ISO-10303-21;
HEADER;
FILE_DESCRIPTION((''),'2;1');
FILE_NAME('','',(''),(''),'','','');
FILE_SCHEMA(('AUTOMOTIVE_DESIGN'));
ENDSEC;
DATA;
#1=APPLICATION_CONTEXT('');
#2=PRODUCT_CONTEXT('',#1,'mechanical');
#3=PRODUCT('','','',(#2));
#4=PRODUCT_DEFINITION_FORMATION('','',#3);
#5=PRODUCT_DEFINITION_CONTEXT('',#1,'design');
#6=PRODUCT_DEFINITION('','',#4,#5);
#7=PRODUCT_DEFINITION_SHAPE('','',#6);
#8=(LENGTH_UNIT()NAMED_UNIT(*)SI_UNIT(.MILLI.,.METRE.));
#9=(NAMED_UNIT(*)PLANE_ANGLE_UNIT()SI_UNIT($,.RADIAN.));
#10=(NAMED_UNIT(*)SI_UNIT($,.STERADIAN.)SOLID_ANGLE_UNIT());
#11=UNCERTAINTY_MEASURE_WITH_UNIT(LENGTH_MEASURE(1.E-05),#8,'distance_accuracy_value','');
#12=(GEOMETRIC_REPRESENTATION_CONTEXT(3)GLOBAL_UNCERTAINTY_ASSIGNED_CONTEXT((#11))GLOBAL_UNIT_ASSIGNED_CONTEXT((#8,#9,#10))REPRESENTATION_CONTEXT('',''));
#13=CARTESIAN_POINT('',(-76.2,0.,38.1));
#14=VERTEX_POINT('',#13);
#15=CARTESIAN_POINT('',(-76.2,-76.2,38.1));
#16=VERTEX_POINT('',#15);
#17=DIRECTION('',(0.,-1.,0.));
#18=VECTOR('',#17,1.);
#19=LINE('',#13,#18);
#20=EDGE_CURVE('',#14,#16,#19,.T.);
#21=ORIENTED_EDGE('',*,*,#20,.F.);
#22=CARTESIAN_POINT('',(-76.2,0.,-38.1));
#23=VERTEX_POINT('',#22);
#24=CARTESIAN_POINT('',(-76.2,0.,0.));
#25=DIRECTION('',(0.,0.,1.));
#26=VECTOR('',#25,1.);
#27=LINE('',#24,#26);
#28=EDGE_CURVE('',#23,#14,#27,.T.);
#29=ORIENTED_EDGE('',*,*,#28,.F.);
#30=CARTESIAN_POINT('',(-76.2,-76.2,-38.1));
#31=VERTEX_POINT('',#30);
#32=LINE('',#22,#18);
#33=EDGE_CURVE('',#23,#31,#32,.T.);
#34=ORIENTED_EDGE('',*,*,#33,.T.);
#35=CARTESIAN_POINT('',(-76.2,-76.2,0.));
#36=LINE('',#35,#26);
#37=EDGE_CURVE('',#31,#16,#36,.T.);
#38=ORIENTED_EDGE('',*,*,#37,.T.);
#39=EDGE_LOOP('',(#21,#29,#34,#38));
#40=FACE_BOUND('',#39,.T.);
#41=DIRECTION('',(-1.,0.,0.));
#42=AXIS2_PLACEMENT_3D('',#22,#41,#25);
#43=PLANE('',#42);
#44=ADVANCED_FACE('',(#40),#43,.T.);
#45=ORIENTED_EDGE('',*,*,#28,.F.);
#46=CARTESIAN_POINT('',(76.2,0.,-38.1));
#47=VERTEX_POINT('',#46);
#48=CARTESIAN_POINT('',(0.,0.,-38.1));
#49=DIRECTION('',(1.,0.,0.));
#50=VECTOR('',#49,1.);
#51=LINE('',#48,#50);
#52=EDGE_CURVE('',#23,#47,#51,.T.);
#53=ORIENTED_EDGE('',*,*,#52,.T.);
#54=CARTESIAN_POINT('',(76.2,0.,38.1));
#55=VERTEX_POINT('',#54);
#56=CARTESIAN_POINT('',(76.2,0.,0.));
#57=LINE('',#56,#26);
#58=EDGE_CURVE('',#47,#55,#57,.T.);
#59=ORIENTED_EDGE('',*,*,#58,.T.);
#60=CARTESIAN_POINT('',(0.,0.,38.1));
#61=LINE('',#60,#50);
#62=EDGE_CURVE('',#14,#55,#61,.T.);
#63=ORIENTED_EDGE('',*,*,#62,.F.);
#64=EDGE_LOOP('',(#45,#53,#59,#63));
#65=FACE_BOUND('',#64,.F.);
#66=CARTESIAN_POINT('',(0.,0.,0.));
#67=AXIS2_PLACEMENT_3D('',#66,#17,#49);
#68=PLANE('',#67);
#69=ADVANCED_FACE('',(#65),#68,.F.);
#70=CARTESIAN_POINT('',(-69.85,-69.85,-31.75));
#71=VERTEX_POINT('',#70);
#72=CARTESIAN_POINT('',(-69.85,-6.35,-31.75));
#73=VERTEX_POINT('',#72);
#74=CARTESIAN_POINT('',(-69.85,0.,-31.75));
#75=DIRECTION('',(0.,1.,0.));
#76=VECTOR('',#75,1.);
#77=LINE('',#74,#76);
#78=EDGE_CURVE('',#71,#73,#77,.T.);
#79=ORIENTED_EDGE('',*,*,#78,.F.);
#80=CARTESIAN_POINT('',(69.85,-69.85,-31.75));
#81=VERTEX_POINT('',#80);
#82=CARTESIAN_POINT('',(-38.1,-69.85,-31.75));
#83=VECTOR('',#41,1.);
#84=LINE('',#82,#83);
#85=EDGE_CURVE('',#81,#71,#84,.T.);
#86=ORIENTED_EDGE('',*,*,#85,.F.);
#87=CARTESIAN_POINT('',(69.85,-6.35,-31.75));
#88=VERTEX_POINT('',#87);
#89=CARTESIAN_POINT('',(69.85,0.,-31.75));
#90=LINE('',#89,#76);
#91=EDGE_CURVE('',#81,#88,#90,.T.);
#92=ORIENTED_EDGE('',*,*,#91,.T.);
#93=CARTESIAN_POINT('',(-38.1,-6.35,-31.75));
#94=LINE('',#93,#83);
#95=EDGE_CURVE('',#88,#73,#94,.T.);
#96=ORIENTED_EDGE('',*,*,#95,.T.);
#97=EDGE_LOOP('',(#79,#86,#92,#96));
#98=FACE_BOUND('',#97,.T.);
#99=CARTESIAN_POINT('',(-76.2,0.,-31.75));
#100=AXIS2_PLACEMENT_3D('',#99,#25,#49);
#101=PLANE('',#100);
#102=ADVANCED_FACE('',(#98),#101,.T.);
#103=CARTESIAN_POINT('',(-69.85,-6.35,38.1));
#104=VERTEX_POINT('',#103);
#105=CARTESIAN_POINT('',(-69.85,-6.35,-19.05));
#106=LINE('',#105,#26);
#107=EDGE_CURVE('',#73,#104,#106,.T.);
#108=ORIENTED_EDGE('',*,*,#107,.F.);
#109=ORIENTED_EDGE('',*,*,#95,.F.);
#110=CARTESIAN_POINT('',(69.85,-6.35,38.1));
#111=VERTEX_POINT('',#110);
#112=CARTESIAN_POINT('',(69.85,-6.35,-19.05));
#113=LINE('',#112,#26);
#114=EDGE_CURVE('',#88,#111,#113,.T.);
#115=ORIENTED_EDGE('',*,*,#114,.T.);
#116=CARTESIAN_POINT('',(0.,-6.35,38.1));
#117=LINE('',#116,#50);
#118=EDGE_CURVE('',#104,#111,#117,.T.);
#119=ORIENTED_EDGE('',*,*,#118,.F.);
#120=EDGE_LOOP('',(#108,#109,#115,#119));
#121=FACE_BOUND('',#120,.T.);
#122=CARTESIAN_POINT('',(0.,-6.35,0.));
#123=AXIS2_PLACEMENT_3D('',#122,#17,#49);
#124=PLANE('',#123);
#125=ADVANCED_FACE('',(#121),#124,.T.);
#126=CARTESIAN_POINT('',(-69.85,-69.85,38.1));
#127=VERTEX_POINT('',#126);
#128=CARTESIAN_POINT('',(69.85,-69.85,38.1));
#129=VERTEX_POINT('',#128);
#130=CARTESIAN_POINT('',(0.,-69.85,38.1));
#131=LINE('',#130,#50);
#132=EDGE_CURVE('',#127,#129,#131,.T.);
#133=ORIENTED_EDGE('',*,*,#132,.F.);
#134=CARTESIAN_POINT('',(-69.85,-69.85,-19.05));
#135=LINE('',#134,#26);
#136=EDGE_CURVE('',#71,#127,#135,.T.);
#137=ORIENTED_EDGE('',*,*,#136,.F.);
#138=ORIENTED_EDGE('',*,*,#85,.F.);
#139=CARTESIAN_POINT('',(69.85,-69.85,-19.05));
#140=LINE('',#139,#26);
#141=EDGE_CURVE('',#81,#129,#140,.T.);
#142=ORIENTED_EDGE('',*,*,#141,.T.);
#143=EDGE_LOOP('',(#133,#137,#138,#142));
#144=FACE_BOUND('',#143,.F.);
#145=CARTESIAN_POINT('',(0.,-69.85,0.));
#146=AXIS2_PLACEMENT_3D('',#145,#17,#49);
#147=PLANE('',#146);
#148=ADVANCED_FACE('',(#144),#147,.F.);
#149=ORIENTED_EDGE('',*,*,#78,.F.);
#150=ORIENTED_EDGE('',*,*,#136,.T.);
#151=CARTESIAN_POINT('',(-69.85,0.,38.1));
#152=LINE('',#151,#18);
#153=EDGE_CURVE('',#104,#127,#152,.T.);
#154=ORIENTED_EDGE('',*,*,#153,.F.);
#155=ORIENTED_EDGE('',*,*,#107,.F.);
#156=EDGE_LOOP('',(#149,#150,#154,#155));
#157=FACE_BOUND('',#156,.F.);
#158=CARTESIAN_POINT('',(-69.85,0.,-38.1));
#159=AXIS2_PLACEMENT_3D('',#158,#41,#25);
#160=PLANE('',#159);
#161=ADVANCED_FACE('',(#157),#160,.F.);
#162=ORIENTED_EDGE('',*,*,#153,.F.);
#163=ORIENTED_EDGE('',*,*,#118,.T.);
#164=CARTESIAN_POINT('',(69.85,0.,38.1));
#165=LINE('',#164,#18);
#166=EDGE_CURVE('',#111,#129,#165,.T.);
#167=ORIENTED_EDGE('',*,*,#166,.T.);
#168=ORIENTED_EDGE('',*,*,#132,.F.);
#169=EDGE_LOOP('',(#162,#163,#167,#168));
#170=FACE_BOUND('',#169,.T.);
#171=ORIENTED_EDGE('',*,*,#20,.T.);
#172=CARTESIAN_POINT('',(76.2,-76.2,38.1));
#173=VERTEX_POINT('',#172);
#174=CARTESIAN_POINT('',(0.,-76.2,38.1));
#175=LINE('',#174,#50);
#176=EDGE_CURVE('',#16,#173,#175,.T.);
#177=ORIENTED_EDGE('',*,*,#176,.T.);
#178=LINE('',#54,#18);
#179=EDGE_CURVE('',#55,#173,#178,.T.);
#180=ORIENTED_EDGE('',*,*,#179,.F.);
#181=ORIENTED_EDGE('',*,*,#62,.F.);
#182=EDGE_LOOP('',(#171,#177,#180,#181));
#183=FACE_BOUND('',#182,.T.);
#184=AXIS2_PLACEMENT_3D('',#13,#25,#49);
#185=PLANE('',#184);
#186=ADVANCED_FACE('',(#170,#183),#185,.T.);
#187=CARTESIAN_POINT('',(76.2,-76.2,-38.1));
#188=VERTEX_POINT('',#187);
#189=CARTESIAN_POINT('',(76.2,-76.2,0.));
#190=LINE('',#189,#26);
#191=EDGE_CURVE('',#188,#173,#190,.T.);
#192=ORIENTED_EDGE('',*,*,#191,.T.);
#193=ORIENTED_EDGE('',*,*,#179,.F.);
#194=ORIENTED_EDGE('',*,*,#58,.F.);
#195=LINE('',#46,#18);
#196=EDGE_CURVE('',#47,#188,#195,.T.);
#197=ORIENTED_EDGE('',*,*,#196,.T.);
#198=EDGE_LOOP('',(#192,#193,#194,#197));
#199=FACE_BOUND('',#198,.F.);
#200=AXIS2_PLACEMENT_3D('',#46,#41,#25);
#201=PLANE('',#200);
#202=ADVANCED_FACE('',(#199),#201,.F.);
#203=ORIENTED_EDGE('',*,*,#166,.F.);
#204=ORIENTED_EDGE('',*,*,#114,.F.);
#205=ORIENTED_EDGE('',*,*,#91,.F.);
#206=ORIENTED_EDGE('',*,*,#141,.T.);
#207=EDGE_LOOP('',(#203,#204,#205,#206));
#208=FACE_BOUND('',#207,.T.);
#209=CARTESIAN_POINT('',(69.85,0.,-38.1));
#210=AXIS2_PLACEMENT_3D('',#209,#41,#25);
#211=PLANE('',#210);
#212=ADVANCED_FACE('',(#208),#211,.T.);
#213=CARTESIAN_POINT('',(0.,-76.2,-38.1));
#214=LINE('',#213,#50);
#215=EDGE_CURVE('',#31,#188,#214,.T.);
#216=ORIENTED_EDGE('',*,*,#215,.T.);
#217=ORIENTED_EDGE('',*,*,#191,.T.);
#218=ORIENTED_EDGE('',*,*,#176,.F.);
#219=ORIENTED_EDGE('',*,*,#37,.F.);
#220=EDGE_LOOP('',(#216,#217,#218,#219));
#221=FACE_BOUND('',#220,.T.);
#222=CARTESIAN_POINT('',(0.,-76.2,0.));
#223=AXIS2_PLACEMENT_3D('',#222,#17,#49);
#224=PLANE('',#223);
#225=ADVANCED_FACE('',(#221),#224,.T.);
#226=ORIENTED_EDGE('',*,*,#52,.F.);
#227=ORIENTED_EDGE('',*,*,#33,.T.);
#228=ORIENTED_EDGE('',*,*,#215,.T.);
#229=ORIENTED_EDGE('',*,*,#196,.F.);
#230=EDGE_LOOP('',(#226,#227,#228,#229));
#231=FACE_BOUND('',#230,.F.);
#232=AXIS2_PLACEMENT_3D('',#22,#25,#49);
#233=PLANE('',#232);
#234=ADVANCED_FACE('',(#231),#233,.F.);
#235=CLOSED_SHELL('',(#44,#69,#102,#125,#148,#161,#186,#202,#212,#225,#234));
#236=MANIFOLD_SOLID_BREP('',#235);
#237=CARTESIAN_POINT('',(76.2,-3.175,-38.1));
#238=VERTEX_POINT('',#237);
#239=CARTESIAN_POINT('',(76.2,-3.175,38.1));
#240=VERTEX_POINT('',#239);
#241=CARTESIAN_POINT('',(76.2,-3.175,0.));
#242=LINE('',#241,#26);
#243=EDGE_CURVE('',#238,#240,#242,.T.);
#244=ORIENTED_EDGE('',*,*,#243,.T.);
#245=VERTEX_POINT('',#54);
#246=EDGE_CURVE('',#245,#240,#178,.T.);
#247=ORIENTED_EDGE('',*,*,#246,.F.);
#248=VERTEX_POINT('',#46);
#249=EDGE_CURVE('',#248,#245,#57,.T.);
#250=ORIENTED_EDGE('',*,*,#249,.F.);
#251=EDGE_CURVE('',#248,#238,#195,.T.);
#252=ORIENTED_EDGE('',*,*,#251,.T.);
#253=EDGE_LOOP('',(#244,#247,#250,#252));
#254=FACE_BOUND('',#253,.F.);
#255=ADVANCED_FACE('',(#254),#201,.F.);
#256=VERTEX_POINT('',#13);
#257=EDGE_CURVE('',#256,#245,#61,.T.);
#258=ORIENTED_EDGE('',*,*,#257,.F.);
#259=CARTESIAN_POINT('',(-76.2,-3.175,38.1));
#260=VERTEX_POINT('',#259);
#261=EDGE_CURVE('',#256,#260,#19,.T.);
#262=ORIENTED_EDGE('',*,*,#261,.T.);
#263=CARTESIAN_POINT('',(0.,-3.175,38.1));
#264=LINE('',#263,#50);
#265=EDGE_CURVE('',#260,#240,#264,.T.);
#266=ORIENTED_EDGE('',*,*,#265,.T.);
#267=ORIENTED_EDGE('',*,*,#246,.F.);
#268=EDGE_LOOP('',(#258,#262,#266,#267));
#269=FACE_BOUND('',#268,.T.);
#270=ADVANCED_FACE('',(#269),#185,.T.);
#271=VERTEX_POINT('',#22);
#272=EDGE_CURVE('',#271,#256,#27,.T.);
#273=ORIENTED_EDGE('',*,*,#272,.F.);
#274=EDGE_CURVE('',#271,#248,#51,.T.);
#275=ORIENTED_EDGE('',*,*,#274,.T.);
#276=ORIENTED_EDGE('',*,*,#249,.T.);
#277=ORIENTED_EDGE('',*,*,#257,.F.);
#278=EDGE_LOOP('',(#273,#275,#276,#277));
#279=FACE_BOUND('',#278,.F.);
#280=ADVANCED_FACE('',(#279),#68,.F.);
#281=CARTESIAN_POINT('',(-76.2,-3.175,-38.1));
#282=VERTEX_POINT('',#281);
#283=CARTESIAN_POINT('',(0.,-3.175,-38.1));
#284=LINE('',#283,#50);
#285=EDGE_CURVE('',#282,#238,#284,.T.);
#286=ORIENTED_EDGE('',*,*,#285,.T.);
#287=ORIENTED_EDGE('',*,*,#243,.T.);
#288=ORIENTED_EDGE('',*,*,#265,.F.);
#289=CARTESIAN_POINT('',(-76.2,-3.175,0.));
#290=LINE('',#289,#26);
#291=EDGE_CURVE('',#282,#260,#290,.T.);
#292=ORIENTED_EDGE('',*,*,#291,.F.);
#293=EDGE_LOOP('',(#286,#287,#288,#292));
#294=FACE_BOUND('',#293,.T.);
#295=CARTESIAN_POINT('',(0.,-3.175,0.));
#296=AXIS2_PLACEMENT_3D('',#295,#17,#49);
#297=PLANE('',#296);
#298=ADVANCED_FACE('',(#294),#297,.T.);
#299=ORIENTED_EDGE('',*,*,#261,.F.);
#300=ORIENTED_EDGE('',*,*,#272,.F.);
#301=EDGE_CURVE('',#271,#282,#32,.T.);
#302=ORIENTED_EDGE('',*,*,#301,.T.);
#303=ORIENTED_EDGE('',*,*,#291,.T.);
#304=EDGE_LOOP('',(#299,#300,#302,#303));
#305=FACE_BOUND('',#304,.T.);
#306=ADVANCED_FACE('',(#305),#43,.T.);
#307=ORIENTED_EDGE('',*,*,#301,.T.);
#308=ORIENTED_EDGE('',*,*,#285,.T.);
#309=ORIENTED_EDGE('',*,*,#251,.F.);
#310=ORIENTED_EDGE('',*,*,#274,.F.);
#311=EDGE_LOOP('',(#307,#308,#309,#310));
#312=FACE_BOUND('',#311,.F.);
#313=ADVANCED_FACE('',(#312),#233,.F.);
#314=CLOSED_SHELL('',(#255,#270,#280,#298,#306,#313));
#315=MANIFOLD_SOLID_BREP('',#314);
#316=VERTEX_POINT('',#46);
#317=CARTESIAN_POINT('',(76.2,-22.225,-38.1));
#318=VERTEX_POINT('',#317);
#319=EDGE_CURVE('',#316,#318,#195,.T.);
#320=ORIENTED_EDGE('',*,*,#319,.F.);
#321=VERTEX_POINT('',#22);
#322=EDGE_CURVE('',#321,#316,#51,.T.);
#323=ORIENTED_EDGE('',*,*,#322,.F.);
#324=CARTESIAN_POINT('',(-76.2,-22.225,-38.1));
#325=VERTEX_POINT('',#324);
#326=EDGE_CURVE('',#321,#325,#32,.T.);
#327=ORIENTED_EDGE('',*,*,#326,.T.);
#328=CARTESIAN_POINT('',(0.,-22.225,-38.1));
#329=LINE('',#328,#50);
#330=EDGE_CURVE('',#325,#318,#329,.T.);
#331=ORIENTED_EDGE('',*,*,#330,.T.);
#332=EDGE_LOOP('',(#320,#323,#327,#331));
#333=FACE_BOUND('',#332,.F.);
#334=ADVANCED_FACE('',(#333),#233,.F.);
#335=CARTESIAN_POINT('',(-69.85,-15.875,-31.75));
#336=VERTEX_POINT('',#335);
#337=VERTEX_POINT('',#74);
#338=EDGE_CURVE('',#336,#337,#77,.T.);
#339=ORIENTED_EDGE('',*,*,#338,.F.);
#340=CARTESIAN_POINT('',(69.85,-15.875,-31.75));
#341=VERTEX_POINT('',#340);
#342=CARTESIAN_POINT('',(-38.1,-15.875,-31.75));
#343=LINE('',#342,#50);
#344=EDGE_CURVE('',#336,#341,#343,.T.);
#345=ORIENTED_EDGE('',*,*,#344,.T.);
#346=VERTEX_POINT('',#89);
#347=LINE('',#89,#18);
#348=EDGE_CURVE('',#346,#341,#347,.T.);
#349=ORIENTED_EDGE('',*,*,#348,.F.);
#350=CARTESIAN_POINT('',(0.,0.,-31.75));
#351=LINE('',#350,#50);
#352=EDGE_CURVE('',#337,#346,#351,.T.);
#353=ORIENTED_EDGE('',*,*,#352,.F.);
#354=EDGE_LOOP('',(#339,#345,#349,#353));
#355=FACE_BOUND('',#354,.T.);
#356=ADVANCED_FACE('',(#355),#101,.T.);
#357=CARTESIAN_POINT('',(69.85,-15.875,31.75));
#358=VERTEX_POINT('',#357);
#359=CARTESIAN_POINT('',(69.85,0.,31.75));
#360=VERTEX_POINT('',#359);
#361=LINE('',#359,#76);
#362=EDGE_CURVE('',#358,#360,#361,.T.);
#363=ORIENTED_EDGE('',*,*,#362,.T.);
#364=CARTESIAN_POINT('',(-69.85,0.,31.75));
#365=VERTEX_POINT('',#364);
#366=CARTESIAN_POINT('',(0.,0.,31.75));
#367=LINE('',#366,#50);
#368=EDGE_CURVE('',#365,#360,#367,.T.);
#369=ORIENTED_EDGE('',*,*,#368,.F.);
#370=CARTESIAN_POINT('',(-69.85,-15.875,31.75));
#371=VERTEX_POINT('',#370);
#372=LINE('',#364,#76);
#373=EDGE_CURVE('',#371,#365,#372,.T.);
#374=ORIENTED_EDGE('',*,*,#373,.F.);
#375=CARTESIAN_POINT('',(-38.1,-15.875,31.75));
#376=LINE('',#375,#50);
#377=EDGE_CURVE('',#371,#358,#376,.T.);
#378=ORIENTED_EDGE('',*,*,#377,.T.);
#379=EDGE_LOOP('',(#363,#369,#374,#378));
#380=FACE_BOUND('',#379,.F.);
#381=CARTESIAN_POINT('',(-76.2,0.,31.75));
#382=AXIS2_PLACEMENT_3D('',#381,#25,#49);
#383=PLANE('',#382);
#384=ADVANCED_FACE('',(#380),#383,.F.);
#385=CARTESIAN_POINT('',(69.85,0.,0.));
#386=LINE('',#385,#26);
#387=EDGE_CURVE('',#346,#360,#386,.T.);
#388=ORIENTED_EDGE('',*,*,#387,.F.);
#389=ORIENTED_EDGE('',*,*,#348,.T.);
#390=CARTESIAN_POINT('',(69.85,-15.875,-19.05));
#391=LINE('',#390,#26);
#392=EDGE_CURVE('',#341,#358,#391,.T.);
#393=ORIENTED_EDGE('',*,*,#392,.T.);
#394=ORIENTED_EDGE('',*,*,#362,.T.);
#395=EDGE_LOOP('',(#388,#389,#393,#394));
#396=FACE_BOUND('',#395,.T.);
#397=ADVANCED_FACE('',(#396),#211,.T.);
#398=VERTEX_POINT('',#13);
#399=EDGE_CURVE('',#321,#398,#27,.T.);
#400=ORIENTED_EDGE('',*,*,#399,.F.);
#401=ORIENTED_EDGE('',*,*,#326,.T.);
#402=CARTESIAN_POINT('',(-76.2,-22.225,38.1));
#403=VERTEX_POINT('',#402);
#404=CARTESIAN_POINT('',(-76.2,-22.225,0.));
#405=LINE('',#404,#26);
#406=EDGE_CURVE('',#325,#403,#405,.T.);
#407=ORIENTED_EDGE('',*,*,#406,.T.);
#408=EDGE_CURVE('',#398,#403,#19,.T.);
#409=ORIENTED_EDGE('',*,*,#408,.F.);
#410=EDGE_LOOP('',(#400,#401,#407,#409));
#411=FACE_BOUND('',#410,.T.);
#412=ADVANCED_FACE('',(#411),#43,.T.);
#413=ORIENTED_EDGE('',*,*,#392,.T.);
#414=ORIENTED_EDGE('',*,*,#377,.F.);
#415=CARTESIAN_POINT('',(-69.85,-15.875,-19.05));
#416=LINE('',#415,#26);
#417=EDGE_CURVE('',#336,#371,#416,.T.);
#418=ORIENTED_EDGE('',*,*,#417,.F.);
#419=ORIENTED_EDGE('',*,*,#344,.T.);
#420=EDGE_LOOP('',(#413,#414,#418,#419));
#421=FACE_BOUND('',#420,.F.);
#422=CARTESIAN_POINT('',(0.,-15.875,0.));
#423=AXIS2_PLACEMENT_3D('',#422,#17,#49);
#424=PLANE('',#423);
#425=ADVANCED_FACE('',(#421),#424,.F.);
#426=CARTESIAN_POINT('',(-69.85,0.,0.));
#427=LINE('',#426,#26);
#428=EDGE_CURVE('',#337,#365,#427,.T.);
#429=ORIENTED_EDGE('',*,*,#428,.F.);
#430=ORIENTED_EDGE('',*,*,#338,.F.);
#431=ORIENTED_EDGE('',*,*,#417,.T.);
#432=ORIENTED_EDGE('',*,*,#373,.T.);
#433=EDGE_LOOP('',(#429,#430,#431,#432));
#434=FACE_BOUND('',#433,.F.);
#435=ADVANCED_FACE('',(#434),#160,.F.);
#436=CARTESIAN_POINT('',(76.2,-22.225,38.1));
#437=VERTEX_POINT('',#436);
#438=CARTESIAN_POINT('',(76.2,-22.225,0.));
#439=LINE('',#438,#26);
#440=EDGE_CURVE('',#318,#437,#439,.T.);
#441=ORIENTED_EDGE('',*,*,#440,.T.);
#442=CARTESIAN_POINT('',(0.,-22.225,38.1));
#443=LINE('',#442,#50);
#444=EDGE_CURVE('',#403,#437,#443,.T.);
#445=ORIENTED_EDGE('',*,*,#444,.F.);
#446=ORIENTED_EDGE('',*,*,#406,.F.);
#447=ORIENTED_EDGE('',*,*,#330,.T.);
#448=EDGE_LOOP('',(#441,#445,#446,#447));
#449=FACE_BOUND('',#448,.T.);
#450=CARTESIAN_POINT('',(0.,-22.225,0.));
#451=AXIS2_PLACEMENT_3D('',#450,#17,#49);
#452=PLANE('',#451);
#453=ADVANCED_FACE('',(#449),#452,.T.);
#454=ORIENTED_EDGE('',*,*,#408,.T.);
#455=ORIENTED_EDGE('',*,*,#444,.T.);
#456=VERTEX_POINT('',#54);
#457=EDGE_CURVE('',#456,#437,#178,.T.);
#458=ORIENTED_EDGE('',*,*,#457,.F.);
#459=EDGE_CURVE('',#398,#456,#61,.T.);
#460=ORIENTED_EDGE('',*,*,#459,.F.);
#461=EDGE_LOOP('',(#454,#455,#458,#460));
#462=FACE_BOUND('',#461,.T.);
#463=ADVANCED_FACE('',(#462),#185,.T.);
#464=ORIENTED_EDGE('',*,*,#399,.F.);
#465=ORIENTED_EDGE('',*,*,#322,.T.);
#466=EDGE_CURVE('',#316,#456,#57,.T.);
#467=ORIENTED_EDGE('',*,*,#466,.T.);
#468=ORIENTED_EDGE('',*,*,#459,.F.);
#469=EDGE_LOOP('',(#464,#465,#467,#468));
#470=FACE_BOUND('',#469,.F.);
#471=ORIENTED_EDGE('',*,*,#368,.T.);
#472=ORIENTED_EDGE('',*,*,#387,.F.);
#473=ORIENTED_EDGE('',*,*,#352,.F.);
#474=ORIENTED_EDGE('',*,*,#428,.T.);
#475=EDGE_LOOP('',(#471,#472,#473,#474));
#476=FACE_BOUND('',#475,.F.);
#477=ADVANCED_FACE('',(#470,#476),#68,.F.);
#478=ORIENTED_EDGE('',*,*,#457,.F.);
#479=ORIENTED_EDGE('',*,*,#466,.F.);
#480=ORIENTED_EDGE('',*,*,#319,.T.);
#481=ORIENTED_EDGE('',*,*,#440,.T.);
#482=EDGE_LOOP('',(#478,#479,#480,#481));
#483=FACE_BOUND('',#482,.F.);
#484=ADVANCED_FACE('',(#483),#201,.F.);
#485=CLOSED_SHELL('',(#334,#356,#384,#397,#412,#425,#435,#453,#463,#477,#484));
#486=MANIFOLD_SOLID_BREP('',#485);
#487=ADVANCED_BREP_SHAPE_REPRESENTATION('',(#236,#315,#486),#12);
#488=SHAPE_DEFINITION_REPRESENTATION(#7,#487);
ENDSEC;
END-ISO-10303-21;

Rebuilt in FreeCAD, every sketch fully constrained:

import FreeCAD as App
import Part
import Sketcher

V = App.Vector
Q = App.Units.Quantity


def faces_at(feature, points):
    """Names of the faces that lie closest to the given points."""
    faces = feature.Shape.Faces
    near = lambda p: min(range(len(faces)), key=lambda i: faces[i].distToShape(Part.Vertex(*p))[0])
    return sorted({f"Face{near(p) + 1}" for p in points})


def add_polygon(sketch, points):
    """Adds a closed chain of lines whose ends are joined by coincident constraints."""
    first, n = sketch.GeometryCount, len(points)
    for a, b in zip(points, points[1:] + points[:1]):
        sketch.addGeometry(Part.LineSegment(App.Vector(*a, 0), App.Vector(*b, 0)), False)
    for i in range(n):
        sketch.addConstraint(Sketcher.Constraint("Coincident", first + i, 2, first + (i + 1) % n, 1))

doc = App.newDocument("Part")
body = doc.addObject("PartDesign::Body", "Body")

# Sketch on XZ plane
sketch1 = doc.addObject("Sketcher::SketchObject", "Sketch")
body.addObject(sketch1)
sketch1.AttachmentSupport = (doc.XZ_Plane, [""])
sketch1.MapMode = "FlatFace"
add_polygon(sketch1, [(-76, 38), (-76, -38), (76, -38), (76, 38)])  # lines 0-3
sketch1.addConstraint([
    Sketcher.Constraint("Vertical", 0),
    Sketcher.Constraint("Horizontal", 1),
    Sketcher.Constraint("Vertical", 2),
    Sketcher.Constraint("Horizontal", 3),
    Sketcher.Constraint("Symmetric", 0, 2, 2, 2, -1, 1),
    Sketcher.Constraint("DistanceX", 1, 1, 1, 2, Q("6 in")),
    Sketcher.Constraint("DistanceY", 0, 2, 0, 1, Q("3 in")),
])
pad1 = doc.addObject("PartDesign::Pad", "Pad")
body.addObject(pad1)
pad1.Profile = sketch1
pad1.Length = Q("3 in")
doc.recompute()

thickness = doc.addObject("PartDesign::Thickness", "Thickness")
body.addObject(thickness)
thickness.Base = (pad1, faces_at(pad1, [(0, -38.1, 38.1)]))
thickness.Value = Q("0.25 in")
thickness.Reversed = True
thickness.Join = "Arc"
body2 = doc.addObject("PartDesign::Body", "Body001")

# Sketch on XZ plane
sketch2 = doc.addObject("Sketcher::SketchObject", "Sketch001")
body2.addObject(sketch2)
sketch2.AttachmentSupport = (doc.getObject("XZ_Plane001"), [""])
sketch2.MapMode = "FlatFace"
add_polygon(sketch2, [(-76, 38), (-76, -38), (76, -38), (76, 38)])  # lines 0-3
sketch2.addConstraint([
    Sketcher.Constraint("Vertical", 0),
    Sketcher.Constraint("Horizontal", 1),
    Sketcher.Constraint("Vertical", 2),
    Sketcher.Constraint("Horizontal", 3),
    Sketcher.Constraint("Symmetric", 0, 2, 2, 2, -1, 1),
    Sketcher.Constraint("DistanceX", 1, 1, 1, 2, Q("6 in")),
    Sketcher.Constraint("DistanceY", 0, 2, 0, 1, Q("3 in")),
])
pad2 = doc.addObject("PartDesign::Pad", "Pad001")
body2.addObject(pad2)
pad2.Profile = sketch2
pad2.Length = Q("0.875 in")
doc.recompute()

thickness2 = doc.addObject("PartDesign::Thickness", "Thickness001")
body2.addObject(thickness2)
thickness2.Base = (pad2, faces_at(pad2, [(0, 0, 0)]))
thickness2.Value = Q("0.25 in")
thickness2.Reversed = True
thickness2.Join = "Arc"
body3 = doc.addObject("PartDesign::Body", "Body002")

# Sketch on XZ plane
sketch3 = doc.addObject("Sketcher::SketchObject", "Sketch002")
body3.addObject(sketch3)
sketch3.AttachmentSupport = (doc.getObject("XZ_Plane002"), [""])
sketch3.MapMode = "FlatFace"
add_polygon(sketch3, [(-76, 38), (-76, -38), (76, -38), (76, 38)])  # lines 0-3
sketch3.addConstraint([
    Sketcher.Constraint("Vertical", 0),
    Sketcher.Constraint("Horizontal", 1),
    Sketcher.Constraint("Vertical", 2),
    Sketcher.Constraint("Horizontal", 3),
    Sketcher.Constraint("Symmetric", 0, 2, 2, 2, -1, 1),
    Sketcher.Constraint("DistanceX", 1, 1, 1, 2, Q("6 in")),
    Sketcher.Constraint("DistanceY", 0, 2, 0, 1, Q("3 in")),
])
pad3 = doc.addObject("PartDesign::Pad", "Pad002")
body3.addObject(pad3)
pad3.Profile = sketch3
pad3.Length = Q("0.125 in")

doc.recompute()
